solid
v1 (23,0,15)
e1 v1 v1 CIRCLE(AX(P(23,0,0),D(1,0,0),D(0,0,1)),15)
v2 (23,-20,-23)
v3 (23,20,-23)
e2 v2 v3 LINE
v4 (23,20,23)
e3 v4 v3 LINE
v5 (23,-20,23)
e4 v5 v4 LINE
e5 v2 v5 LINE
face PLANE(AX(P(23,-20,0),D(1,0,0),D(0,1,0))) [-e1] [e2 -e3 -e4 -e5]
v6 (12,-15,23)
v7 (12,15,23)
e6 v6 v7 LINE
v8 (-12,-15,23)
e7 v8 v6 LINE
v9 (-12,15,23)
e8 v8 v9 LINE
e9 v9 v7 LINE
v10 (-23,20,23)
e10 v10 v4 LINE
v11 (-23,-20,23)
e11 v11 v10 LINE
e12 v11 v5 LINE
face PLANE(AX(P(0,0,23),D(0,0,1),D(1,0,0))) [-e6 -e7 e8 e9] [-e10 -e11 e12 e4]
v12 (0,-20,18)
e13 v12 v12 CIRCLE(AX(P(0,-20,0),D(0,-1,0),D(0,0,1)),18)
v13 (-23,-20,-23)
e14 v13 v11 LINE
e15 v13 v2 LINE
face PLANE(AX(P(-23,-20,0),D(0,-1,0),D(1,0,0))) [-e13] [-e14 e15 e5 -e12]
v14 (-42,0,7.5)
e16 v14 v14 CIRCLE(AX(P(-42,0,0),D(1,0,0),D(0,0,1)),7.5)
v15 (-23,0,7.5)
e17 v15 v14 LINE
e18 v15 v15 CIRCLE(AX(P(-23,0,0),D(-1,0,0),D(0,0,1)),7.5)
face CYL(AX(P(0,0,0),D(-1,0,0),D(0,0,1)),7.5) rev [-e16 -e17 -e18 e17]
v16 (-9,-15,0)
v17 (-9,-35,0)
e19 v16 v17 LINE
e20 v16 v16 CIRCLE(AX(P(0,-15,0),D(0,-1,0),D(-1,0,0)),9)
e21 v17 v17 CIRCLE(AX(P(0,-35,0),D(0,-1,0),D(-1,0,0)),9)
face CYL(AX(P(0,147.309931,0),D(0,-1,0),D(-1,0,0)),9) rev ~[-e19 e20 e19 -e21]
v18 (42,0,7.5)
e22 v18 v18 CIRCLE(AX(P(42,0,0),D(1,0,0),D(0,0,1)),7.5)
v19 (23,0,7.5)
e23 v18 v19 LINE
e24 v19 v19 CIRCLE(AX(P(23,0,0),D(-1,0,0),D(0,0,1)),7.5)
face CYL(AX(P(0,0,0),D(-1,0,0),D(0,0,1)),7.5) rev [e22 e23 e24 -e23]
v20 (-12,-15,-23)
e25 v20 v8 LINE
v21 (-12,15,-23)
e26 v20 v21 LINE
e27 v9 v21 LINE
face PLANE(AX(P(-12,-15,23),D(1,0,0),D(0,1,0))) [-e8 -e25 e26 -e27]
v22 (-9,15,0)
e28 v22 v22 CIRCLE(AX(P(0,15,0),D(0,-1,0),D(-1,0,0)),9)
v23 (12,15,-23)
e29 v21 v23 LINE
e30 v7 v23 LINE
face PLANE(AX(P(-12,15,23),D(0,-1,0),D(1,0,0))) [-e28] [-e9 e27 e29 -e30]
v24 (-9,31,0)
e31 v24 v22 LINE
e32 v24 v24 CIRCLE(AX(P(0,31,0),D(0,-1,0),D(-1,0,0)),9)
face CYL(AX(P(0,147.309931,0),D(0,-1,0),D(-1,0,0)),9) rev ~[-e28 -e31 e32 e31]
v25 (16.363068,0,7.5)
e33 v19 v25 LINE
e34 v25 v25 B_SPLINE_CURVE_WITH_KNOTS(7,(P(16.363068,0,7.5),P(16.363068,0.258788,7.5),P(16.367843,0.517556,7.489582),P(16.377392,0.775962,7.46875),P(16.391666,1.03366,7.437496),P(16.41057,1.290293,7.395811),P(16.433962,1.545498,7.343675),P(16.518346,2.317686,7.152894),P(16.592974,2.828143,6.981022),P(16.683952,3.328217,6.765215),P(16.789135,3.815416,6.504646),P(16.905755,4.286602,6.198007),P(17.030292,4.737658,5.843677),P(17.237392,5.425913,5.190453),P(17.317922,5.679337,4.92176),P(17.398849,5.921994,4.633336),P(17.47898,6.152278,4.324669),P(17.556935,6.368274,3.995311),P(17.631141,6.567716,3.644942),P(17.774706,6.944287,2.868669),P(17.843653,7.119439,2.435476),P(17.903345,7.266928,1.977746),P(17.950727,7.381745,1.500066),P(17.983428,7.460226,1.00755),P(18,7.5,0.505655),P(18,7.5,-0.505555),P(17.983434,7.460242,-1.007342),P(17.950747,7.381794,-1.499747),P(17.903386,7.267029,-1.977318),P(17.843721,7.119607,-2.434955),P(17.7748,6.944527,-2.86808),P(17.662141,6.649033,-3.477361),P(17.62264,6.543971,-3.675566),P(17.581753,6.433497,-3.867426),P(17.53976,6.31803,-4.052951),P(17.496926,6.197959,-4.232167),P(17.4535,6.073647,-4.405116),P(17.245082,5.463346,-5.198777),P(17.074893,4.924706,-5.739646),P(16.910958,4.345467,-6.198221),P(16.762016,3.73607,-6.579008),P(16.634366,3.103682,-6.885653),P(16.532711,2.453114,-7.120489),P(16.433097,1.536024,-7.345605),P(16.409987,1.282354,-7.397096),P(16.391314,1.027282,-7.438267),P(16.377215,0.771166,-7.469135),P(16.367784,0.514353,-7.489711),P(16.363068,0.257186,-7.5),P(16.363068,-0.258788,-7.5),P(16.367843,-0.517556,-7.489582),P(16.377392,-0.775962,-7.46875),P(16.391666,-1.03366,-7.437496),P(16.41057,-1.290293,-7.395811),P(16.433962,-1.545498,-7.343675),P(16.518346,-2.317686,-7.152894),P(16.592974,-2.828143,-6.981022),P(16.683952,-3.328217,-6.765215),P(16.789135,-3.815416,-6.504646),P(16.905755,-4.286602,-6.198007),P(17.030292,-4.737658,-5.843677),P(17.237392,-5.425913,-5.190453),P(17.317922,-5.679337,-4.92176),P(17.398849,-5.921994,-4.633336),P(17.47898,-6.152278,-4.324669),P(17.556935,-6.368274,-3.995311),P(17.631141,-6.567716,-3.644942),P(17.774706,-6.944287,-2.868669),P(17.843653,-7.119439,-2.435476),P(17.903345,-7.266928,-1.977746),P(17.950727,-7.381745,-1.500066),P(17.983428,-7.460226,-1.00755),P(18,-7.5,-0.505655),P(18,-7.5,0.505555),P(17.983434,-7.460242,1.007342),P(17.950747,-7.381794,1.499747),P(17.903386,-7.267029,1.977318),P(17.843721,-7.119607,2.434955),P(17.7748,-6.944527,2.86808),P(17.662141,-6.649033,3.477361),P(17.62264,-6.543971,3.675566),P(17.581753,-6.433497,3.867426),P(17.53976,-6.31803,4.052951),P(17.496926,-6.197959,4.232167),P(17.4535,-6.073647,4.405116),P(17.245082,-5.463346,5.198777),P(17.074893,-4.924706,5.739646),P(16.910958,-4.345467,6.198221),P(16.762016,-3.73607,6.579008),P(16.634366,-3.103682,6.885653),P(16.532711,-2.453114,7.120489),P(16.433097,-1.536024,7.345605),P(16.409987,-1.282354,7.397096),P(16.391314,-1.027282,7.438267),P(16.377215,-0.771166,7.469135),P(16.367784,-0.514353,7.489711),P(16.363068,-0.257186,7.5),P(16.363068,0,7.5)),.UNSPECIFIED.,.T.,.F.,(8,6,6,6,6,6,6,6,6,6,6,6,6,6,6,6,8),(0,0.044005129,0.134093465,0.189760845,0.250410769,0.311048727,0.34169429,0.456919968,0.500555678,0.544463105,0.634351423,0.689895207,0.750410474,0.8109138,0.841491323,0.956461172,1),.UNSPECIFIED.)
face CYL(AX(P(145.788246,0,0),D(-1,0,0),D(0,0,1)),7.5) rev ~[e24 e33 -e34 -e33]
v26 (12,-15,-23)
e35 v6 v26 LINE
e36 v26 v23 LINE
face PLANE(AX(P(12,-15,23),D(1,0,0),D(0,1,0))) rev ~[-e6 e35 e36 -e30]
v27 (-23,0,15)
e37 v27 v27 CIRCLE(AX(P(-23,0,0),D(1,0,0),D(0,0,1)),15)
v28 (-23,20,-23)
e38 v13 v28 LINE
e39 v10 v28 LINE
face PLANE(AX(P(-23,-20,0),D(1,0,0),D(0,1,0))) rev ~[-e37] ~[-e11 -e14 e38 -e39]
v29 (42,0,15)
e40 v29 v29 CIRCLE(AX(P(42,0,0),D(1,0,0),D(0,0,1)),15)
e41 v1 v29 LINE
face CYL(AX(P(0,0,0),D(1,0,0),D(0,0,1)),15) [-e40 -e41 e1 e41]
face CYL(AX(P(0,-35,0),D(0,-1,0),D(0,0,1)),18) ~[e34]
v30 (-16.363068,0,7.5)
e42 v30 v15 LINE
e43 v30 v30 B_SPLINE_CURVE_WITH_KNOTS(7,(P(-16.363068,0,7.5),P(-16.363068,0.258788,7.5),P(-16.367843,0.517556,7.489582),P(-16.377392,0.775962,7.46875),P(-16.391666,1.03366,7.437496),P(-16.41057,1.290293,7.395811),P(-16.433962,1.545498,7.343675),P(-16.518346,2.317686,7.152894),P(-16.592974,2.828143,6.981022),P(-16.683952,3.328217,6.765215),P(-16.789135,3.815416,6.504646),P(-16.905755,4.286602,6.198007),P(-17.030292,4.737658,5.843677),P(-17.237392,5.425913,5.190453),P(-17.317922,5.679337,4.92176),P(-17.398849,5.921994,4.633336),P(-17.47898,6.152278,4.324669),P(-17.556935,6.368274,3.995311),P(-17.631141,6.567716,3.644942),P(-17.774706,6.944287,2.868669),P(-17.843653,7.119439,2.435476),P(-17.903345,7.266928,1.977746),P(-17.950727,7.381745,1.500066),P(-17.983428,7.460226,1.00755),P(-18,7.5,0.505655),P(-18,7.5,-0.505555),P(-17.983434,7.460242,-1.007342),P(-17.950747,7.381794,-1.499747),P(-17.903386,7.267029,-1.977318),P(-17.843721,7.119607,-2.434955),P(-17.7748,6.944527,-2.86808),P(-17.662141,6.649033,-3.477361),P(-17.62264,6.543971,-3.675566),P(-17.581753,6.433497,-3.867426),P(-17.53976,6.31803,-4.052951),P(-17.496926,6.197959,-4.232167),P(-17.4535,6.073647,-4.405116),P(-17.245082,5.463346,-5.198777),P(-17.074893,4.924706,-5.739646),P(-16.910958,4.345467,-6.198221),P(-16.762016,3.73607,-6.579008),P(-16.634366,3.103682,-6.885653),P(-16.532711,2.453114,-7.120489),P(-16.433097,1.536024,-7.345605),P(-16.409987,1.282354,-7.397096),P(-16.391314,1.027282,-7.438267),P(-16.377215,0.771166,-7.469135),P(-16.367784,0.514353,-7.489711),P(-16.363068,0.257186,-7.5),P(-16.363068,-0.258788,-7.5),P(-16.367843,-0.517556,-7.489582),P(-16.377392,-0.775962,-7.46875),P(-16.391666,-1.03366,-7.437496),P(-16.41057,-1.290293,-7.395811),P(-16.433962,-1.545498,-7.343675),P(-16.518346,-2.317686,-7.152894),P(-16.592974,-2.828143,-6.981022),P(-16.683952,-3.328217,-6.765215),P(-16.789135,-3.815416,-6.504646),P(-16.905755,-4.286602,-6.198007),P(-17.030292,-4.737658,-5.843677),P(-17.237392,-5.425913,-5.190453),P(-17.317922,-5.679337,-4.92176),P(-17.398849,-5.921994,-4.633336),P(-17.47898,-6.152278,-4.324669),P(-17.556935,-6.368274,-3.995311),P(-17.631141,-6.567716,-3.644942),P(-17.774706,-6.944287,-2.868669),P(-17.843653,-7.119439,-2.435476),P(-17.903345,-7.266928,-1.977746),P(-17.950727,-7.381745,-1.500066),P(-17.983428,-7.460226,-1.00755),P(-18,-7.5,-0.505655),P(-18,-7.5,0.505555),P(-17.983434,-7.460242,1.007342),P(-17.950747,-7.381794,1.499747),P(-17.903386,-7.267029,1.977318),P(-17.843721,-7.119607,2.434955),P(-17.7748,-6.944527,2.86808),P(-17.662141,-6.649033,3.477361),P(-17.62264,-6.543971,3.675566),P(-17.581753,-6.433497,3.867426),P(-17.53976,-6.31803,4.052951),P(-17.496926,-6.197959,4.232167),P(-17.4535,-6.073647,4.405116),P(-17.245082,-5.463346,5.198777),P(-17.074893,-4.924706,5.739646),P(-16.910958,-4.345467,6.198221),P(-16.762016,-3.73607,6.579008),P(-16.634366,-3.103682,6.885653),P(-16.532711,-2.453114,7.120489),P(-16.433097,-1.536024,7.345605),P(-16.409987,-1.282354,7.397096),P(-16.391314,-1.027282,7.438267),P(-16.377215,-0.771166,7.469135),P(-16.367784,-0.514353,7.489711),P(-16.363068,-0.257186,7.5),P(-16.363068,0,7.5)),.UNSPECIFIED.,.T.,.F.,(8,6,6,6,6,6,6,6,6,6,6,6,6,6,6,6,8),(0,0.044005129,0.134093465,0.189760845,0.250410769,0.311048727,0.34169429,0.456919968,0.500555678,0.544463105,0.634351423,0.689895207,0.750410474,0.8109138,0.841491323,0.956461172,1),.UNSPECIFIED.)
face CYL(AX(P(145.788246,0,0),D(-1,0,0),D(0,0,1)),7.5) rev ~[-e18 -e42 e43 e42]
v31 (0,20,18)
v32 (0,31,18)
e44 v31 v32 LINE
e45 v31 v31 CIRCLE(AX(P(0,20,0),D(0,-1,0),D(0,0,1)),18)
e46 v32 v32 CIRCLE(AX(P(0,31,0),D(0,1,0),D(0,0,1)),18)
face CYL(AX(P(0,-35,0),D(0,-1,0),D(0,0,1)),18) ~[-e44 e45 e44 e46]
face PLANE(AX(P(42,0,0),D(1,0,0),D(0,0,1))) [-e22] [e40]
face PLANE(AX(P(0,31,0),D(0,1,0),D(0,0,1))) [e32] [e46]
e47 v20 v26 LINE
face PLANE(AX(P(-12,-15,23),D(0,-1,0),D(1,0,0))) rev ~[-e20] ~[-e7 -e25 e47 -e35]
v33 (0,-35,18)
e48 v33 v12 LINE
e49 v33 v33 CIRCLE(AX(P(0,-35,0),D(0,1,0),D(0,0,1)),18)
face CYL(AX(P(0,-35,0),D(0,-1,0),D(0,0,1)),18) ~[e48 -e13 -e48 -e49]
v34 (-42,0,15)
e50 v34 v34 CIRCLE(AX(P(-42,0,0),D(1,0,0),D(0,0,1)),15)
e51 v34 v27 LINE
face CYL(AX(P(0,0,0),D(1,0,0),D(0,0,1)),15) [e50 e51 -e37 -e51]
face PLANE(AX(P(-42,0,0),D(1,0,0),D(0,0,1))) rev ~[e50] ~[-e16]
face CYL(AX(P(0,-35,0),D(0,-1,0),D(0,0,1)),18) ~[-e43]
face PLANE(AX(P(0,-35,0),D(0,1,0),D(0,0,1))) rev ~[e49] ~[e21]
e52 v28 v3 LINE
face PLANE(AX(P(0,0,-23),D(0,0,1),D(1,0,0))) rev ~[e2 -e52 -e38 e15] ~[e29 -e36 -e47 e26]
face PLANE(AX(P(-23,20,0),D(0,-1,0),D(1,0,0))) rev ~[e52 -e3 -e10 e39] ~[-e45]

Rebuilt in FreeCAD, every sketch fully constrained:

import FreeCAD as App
import Part
import Sketcher
Q = App.Units.Quantity

doc = App.newDocument("Part")
body = doc.addObject("PartDesign::Body", "Body")

# Sketch on YZ plane
sketch1 = body.newObject("Sketcher::SketchObject", "Sketch")
sketch1.AttachmentSupport = (doc.getObject("YZ_Plane"), [""])
sketch1.MapMode = "FlatFace"
sketch1.addGeometry([
    Part.Circle(App.Vector(0, 0, 0), App.Vector(0, 0, 1), 15),
    Part.Circle(App.Vector(0, 0, 0), App.Vector(0, 0, 1), 7.5),
], False)
sketch1.addConstraint([
    Sketcher.Constraint("Coincident", 0, 3, -1, 1),
    Sketcher.Constraint("Coincident", 1, 3, -1, 1),
    Sketcher.Constraint("Diameter", 0, Q("30 mm")),
    Sketcher.Constraint("Diameter", 1, Q("15 mm")),
])
pad1 = body.newObject("PartDesign::Pad", "Pad")
pad1.Profile = sketch1
pad1.Length = 84
pad1.Midplane = True

# Sketch on XY plane
sketch2 = body.newObject("Sketcher::SketchObject", "Sketch001")
sketch2.AttachmentSupport = (doc.getObject("XY_Plane"), [""])
sketch2.MapMode = "FlatFace"
sketch2.addGeometry([
    Part.LineSegment(App.Vector(-23, 20, 0), App.Vector(-23, -20, 0)),
    Part.LineSegment(App.Vector(-23, -20, 0), App.Vector(23, -20, 0)),
    Part.LineSegment(App.Vector(23, -20, 0), App.Vector(23, 20, 0)),
    Part.LineSegment(App.Vector(23, 20, 0), App.Vector(-23, 20, 0)),
], False)
sketch2.addConstraint([
    Sketcher.Constraint("Coincident", 0, 2, 1, 1),
    Sketcher.Constraint("Coincident", 1, 2, 2, 1),
    Sketcher.Constraint("Coincident", 2, 2, 3, 1),
    Sketcher.Constraint("Coincident", 3, 2, 0, 1),
    Sketcher.Constraint("Vertical", 0),
    Sketcher.Constraint("Horizontal", 1),
    Sketcher.Constraint("Vertical", 2),
    Sketcher.Constraint("Horizontal", 3),
    Sketcher.Constraint("Symmetric", 0, 2, 2, 2, -1, 1),
    Sketcher.Constraint("DistanceX", 1, 1, 1, 2, Q("46 mm")),
    Sketcher.Constraint("DistanceY", 0, 2, 0, 1, Q("40 mm")),
])
pad2 = body.newObject("PartDesign::Pad", "Pad001")
pad2.Profile = sketch2
pad2.Length = 46
pad2.Midplane = True

# Sketch on XY plane
sketch3 = body.newObject("Sketcher::SketchObject", "Sketch002")
sketch3.AttachmentSupport = (doc.getObject("XY_Plane"), [""])
sketch3.MapMode = "FlatFace"
sketch3.AttachmentOffset = App.Placement(App.Vector(0, 0, 23), App.Rotation())
sketch3.addGeometry([
    Part.LineSegment(App.Vector(-12, 15, 0), App.Vector(-12, -15, 0)),
    Part.LineSegment(App.Vector(-12, -15, 0), App.Vector(12, -15, 0)),
    Part.LineSegment(App.Vector(12, -15, 0), App.Vector(12, 15, 0)),
    Part.LineSegment(App.Vector(12, 15, 0), App.Vector(-12, 15, 0)),
], False)
sketch3.addConstraint([
    Sketcher.Constraint("Coincident", 0, 2, 1, 1),
    Sketcher.Constraint("Coincident", 1, 2, 2, 1),
    Sketcher.Constraint("Coincident", 2, 2, 3, 1),
    Sketcher.Constraint("Coincident", 3, 2, 0, 1),
    Sketcher.Constraint("Vertical", 0),
    Sketcher.Constraint("Horizontal", 1),
    Sketcher.Constraint("Vertical", 2),
    Sketcher.Constraint("Horizontal", 3),
    Sketcher.Constraint("Symmetric", 0, 2, 2, 2, -1, 1),
    Sketcher.Constraint("DistanceX", 1, 1, 1, 2, Q("24 mm")),
    Sketcher.Constraint("DistanceY", 0, 2, 0, 1, Q("30 mm")),
])
pocket1 = body.newObject("PartDesign::Pocket", "Pocket")
pocket1.Profile = sketch3
pocket1.Type = "ThroughAll"

# Sketch on YZ plane
sketch4 = body.newObject("Sketcher::SketchObject", "Sketch003")
sketch4.AttachmentSupport = (doc.getObject("YZ_Plane"), [""])
sketch4.MapMode = "FlatFace"
sketch4.AttachmentOffset = App.Placement(App.Vector(0, 0, 42), App.Rotation())
sketch4.addGeometry(Part.Circle(App.Vector(0, 0, 0), App.Vector(0, 0, 1), 7.5), False)
sketch4.addConstraint([
    Sketcher.Constraint("Coincident", 0, 3, -1, 1),
    Sketcher.Constraint("Diameter", 0, Q("15 mm")),
])
doc.recompute()
hole = body.newObject("PartDesign::Hole", "Hole")
hole.Profile = sketch4
hole.ThreadType = "None"
hole.Diameter = 15
hole.DepthType = "ThroughAll"

# Sketch on XZ plane
sketch5 = body.newObject("Sketcher::SketchObject", "Sketch004")
sketch5.AttachmentSupport = (doc.getObject("XZ_Plane"), [""])
sketch5.MapMode = "FlatFace"
sketch5.AttachmentOffset = App.Placement(App.Vector(0, 0, -20), App.Rotation())
sketch5.addGeometry(Part.Circle(App.Vector(0, 0, 0), App.Vector(0, 0, 1), 18), False)
sketch5.addConstraint([
    Sketcher.Constraint("Coincident", 0, 3, -1, 1),
    Sketcher.Constraint("Diameter", 0, Q("36 mm")),
])
pad3 = body.newObject("PartDesign::Pad", "Pad002")
pad3.Profile = sketch5
pad3.Type = "TwoLengths"
pad3.Length = 11
pad3.Length2 = 55
pad3.Reversed = True

# Sketch on XY plane
sketch6 = body.newObject("Sketcher::SketchObject", "Sketch005")
sketch6.AttachmentSupport = (doc.getObject("XY_Plane"), [""])
sketch6.MapMode = "FlatFace"
sketch6.AttachmentOffset = App.Placement(App.Vector(0, 0, 23), App.Rotation())
sketch6.addGeometry([
    Part.LineSegment(App.Vector(-12, 15, 0), App.Vector(-12, -15, 0)),
    Part.LineSegment(App.Vector(-12, -15, 0), App.Vector(12, -15, 0)),
    Part.LineSegment(App.Vector(12, -15, 0), App.Vector(12, 15, 0)),
    Part.LineSegment(App.Vector(12, 15, 0), App.Vector(-12, 15, 0)),
], False)
sketch6.addConstraint([
    Sketcher.Constraint("Coincident", 0, 2, 1, 1),
    Sketcher.Constraint("Coincident", 1, 2, 2, 1),
    Sketcher.Constraint("Coincident", 2, 2, 3, 1),
    Sketcher.Constraint("Coincident", 3, 2, 0, 1),
    Sketcher.Constraint("Vertical", 0),
    Sketcher.Constraint("Horizontal", 1),
    Sketcher.Constraint("Vertical", 2),
    Sketcher.Constraint("Horizontal", 3),
    Sketcher.Constraint("Symmetric", 0, 2, 2, 2, -1, 1),
    Sketcher.Constraint("DistanceX", 1, 1, 1, 2, Q("24 mm")),
    Sketcher.Constraint("DistanceY", 0, 2, 0, 1, Q("30 mm")),
])
pocket2 = body.newObject("PartDesign::Pocket", "Pocket001")
pocket2.Profile = sketch6
pocket2.Type = "ThroughAll"

# Sketch on XZ plane
sketch7 = body.newObject("Sketcher::SketchObject", "Sketch006")
sketch7.AttachmentSupport = (doc.getObject("XZ_Plane"), [""])
sketch7.MapMode = "FlatFace"
sketch7.AttachmentOffset = App.Placement(App.Vector(0, 0, -31), App.Rotation())
sketch7.addGeometry(Part.Circle(App.Vector(0, 0, 0), App.Vector(0, 0, 1), 9), False)
sketch7.addConstraint([
    Sketcher.Constraint("Coincident", 0, 3, -1, 1),
    Sketcher.Constraint("Diameter", 0, Q("18 mm")),
])
doc.recompute()
hole2 = body.newObject("PartDesign::Hole", "Hole001")
hole2.Profile = sketch7
hole2.ThreadType = "None"
hole2.Diameter = 18
hole2.DepthType = "ThroughAll"
hole2.Reversed = True

doc.recompute()
